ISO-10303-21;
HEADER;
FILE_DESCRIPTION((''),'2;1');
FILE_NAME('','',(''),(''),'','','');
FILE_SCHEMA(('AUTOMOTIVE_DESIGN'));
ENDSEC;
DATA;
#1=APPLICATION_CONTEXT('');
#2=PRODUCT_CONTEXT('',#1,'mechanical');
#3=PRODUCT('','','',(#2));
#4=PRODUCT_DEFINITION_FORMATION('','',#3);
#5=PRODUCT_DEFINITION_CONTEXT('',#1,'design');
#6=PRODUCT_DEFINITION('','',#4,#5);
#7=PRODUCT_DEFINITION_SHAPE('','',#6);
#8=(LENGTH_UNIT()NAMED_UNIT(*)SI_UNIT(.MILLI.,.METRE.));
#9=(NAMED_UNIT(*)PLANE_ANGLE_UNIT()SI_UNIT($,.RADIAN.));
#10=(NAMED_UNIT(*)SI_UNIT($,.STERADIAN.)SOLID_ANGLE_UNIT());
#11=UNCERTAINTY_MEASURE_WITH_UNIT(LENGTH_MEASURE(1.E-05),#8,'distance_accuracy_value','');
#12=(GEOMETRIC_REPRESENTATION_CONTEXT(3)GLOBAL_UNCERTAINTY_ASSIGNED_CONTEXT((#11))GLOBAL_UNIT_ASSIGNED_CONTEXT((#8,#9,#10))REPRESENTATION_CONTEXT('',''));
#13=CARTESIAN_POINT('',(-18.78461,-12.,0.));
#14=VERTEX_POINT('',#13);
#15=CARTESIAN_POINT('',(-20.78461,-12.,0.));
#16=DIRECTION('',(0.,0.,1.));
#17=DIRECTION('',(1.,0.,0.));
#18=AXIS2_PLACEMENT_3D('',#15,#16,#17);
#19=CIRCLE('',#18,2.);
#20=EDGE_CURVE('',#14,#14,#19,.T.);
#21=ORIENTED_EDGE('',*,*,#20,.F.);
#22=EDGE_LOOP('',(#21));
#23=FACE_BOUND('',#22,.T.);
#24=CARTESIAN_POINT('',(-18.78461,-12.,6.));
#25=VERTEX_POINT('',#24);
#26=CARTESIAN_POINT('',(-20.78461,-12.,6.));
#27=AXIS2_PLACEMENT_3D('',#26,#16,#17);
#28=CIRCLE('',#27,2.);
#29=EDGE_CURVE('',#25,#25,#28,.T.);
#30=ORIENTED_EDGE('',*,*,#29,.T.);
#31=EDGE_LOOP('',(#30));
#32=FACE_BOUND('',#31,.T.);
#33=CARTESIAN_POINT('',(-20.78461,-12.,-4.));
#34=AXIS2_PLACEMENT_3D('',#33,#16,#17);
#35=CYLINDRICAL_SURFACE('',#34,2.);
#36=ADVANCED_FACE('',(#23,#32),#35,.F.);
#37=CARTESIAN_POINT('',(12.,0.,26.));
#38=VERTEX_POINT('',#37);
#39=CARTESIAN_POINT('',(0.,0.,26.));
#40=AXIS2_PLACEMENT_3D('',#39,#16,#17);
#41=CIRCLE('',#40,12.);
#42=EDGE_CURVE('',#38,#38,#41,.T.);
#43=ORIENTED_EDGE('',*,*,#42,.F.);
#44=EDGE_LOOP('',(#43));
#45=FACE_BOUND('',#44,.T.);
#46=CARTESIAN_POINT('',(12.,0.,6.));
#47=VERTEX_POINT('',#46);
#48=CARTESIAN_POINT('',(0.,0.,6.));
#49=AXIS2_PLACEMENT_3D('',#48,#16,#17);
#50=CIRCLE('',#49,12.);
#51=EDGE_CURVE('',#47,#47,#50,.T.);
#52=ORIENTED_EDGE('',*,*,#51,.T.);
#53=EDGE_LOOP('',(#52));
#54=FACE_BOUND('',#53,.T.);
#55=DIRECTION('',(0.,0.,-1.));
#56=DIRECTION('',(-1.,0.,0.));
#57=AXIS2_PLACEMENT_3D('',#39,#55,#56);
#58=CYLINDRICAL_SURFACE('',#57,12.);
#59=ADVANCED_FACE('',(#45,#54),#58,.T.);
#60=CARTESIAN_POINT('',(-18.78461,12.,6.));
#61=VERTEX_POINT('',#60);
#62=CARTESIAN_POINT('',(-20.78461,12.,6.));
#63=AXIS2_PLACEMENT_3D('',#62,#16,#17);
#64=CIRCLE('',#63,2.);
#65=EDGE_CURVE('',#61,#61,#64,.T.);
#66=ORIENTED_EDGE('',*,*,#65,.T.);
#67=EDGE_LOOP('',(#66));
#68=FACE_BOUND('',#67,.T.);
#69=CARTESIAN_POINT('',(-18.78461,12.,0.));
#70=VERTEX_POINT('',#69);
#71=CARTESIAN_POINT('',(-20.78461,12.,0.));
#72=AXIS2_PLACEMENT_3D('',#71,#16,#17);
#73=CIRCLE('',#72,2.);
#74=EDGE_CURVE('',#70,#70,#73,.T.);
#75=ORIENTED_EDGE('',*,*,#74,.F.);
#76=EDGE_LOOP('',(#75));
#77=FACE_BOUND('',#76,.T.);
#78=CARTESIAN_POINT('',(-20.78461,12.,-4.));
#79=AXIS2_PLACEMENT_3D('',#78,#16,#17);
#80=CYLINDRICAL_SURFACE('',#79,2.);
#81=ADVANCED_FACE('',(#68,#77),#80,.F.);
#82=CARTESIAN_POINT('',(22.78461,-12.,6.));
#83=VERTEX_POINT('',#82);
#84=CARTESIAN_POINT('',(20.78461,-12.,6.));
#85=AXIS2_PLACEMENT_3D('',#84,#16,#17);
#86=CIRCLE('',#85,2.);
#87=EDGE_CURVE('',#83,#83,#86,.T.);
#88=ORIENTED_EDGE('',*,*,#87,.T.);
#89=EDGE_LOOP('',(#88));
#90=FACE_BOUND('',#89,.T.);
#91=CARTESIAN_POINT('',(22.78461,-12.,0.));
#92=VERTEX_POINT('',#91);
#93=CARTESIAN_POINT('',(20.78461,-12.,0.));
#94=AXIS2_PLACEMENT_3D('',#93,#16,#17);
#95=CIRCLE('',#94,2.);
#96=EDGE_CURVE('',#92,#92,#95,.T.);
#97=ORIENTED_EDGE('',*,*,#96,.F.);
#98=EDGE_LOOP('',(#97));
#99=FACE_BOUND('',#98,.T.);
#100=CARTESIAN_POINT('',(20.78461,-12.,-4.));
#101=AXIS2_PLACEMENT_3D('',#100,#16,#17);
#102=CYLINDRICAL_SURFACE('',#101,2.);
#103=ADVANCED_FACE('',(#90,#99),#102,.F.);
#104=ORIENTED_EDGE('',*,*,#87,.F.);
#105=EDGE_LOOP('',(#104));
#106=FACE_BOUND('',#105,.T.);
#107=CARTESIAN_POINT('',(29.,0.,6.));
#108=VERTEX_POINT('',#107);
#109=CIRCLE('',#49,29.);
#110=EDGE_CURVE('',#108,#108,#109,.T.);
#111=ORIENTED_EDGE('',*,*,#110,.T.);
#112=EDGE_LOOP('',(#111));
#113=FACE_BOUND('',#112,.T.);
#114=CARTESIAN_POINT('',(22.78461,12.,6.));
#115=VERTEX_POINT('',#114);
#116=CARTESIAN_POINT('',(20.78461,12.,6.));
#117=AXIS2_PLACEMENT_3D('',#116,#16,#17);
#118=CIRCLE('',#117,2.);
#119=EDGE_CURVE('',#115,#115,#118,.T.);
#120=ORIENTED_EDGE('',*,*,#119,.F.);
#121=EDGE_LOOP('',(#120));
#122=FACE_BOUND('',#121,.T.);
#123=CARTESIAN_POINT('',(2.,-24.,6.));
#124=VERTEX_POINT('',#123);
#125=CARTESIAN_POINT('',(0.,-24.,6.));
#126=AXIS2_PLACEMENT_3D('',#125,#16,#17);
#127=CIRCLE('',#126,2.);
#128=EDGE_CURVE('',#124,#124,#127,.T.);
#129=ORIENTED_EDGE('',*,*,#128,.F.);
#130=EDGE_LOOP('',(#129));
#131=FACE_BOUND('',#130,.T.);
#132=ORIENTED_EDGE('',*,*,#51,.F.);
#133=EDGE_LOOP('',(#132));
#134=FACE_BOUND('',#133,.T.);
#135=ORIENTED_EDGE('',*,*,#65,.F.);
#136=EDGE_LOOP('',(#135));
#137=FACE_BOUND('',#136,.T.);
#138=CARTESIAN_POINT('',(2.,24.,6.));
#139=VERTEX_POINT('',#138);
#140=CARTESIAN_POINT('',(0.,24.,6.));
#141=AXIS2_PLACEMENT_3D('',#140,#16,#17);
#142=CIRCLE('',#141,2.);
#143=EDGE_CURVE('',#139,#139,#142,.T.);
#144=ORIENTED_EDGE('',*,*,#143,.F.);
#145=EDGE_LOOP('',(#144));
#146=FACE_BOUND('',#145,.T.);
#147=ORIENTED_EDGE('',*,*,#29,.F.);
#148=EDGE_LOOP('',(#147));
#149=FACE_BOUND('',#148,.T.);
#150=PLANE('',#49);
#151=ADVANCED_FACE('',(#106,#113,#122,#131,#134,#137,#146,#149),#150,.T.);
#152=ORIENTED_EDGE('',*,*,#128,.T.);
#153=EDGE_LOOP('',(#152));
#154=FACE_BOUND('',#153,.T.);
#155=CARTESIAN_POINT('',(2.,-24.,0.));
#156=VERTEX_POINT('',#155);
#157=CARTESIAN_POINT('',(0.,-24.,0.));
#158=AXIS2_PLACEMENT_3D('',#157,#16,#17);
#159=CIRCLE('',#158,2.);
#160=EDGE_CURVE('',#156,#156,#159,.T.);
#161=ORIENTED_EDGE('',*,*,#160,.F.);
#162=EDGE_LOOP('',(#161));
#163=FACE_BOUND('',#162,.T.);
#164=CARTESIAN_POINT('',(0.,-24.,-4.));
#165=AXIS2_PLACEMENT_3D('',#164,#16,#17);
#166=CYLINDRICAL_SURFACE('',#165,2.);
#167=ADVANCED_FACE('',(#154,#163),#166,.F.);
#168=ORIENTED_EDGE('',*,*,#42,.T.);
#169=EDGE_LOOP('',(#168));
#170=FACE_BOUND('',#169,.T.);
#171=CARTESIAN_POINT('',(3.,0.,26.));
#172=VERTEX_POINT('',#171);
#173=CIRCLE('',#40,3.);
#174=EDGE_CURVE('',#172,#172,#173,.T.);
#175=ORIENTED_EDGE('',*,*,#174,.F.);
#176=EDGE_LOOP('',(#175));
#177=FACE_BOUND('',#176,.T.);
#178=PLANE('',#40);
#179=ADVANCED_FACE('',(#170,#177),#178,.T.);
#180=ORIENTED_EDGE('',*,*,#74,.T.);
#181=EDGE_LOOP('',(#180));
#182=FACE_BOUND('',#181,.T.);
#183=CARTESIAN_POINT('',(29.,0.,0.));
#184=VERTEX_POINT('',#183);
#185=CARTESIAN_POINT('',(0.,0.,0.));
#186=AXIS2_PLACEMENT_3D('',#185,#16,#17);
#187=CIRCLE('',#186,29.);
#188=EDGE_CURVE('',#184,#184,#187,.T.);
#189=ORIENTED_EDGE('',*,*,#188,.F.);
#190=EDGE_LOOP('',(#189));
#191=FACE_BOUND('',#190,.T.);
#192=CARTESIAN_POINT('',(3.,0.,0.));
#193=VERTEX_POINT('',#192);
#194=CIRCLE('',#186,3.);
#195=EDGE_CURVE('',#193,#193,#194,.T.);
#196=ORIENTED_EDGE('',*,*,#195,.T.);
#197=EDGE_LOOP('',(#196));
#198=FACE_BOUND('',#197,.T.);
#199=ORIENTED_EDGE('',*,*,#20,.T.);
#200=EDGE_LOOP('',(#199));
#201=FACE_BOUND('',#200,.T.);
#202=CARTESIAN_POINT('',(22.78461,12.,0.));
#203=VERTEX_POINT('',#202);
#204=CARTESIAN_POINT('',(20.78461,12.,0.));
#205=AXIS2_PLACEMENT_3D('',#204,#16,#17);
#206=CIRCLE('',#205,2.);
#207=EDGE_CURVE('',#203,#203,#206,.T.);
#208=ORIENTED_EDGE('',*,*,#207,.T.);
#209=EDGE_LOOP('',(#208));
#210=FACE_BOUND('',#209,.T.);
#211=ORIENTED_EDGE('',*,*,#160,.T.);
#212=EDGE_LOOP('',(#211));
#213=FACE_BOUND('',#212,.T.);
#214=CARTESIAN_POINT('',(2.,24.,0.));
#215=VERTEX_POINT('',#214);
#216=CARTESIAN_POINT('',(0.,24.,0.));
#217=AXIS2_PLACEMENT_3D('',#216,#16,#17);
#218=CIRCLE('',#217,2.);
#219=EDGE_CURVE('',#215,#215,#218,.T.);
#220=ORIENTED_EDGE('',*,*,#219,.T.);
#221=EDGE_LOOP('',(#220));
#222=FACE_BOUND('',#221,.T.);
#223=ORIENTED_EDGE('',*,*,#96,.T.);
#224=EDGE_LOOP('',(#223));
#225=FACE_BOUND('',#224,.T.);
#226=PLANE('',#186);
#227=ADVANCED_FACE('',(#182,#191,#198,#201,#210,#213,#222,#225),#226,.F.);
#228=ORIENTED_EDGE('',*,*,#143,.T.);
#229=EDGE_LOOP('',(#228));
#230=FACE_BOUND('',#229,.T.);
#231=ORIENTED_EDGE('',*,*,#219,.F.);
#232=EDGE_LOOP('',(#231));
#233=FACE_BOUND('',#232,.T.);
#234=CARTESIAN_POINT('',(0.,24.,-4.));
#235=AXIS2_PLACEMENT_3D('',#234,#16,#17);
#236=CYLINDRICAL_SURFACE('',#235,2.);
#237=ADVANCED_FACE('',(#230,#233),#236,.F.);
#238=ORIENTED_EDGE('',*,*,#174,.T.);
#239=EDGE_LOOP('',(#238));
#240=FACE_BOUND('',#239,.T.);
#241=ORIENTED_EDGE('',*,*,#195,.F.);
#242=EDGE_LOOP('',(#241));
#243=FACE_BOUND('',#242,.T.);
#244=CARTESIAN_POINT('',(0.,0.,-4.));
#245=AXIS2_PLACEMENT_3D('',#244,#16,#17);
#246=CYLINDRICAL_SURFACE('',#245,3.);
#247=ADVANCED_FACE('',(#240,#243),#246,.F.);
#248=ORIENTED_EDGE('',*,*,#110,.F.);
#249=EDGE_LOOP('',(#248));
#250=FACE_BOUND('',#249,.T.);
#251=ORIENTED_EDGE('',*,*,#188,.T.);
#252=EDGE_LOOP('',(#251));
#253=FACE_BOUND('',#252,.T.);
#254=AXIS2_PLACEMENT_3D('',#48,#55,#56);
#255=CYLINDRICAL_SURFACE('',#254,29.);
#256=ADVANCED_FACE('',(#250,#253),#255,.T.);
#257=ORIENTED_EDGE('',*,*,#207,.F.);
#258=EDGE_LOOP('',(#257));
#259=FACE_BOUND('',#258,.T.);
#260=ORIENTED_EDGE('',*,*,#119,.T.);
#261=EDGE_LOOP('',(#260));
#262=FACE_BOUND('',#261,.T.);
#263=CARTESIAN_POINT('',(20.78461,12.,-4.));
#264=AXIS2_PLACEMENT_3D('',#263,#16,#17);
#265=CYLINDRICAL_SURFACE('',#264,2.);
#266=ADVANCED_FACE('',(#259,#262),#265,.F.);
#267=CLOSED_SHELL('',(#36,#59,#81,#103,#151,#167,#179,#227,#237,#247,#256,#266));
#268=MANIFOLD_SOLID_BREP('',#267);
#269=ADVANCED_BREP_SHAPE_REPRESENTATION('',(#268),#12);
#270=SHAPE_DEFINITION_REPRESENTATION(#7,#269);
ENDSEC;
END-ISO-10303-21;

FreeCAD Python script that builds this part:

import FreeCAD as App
import Part
import Sketcher
from FreeCAD import Vector

doc = App.newDocument("Part")
params = doc.addObject("Spreadsheet::Sheet", "Params")
for row, (alias, value) in enumerate([
    ("sketch1_diameter", "58 mm"),
    ("pad1_length", "6 mm"),
    ("sketch2_diameter", "24 mm"),
    ("pad2_length", "20 mm"),
    ("sketch3_diameter", "4 mm"),
    ("pocket1_length", "10 mm"),
    ("sketch4_diameter", "6 mm"),
    ("pocket2_length", "30 mm"),
], start=1):
    params.set(f"A{row}", alias)
    params.set(f"B{row}", "=" + value)
    params.setAlias(f"B{row}", alias)

body = doc.addObject("PartDesign::Body", "Body")

# Sketch on XY plane
sketch1 = body.newObject("Sketcher::SketchObject", "Sketch")
sketch1.AttachmentSupport = (doc.getObject("XY_Plane"), [""])
sketch1.MapMode = "FlatFace"
sketch1.addGeometry(Part.Circle(Vector(0, 0, 0), Vector(0, 0, 1), 29), False)
sketch1.addConstraint([
    Sketcher.Constraint("Coincident", 0, 3, -1, 1),
    Sketcher.Constraint("Diameter", 0, 58.0),
])
sketch1.setExpression("Constraints[1]", "Params.sketch1_diameter")
pad1 = body.newObject("PartDesign::Pad", "Pad")
pad1.Profile = sketch1
pad1.setExpression("Length", "Params.pad1_length")

# Sketch on XY plane
sketch2 = body.newObject("Sketcher::SketchObject", "Sketch001")
sketch2.AttachmentSupport = (doc.getObject("XY_Plane"), [""])
sketch2.MapMode = "FlatFace"
sketch2.AttachmentOffset = App.Placement(Vector(0, 0, 6), App.Rotation())
sketch2.addGeometry(Part.Circle(Vector(0, 0, 0), Vector(0, 0, 1), 12), False)
sketch2.addConstraint([
    Sketcher.Constraint("Coincident", 0, 3, -1, 1),
    Sketcher.Constraint("Diameter", 0, 24.0),
])
sketch2.setExpression("Constraints[1]", "Params.sketch2_diameter")
pad2 = body.newObject("PartDesign::Pad", "Pad001")
pad2.Profile = sketch2
pad2.setExpression("Length", "Params.pad2_length")

# Sketch on XY plane
sketch3 = body.newObject("Sketcher::SketchObject", "Sketch002")
sketch3.AttachmentSupport = (doc.getObject("XY_Plane"), [""])
sketch3.MapMode = "FlatFace"
sketch3.AttachmentOffset = App.Placement(Vector(0, 0, 6), App.Rotation())
sketch3.addGeometry([
    Part.Circle(Vector(0, 24, 0), Vector(0, 0, 1), 2),  # 0
    Part.Circle(Vector(20.8, 12, 0), Vector(0, 0, 1), 2),  # 1
    Part.Circle(Vector(20.8, -12, 0), Vector(0, 0, 1), 2),  # 2
    Part.Circle(Vector(0, -24, 0), Vector(0, 0, 1), 2),  # 3
    Part.Circle(Vector(-20.8, -12, 0), Vector(0, 0, 1), 2),  # 4
    Part.Circle(Vector(-20.8, 12, 0), Vector(0, 0, 1), 2),  # 5
], False)
sketch3.addConstraint([
    Sketcher.Constraint("Equal", 0, 1),
    Sketcher.Constraint("Equal", 1, 2),
    Sketcher.Constraint("Equal", 2, 3),
    Sketcher.Constraint("Equal", 3, 4),
    Sketcher.Constraint("Equal", 4, 5),
    Sketcher.Constraint("Symmetric", 0, 3, 3, 3, -1, 1),
    Sketcher.Constraint("Symmetric", 1, 3, 4, 3, -1, 1),
    Sketcher.Constraint("Symmetric", 2, 3, 5, 3, -1, 1),
    Sketcher.Constraint("Symmetric", 2, 3, 4, 3, -2),
    Sketcher.Constraint("PointOnObject", 0, 3, -2),
    Sketcher.Constraint("Diameter", 0, 4.0),
    Sketcher.Constraint("DistanceY", -1, 1, 0, 3, 24.0),
    Sketcher.Constraint("DistanceY", -1, 1, 1, 3, 12.0),
    Sketcher.Constraint("DistanceX", -1, 1, 1, 3, 20.78461),
])
sketch3.setExpression("Constraints[10]", "Params.sketch3_diameter")
pocket1 = body.newObject("PartDesign::Pocket", "Pocket")
pocket1.Profile = sketch3
pocket1.setExpression("Length", "Params.pocket1_length")

# Sketch on XY plane
sketch4 = body.newObject("Sketcher::SketchObject", "Sketch003")
sketch4.AttachmentSupport = (doc.getObject("XY_Plane"), [""])
sketch4.MapMode = "FlatFace"
sketch4.AttachmentOffset = App.Placement(Vector(0, 0, 26), App.Rotation())
sketch4.addGeometry(Part.Circle(Vector(0, 0, 0), Vector(0, 0, 1), 3), False)
sketch4.addConstraint([
    Sketcher.Constraint("Coincident", 0, 3, -1, 1),
    Sketcher.Constraint("Diameter", 0, 6.0),
])
sketch4.setExpression("Constraints[1]", "Params.sketch4_diameter")
pocket2 = body.newObject("PartDesign::Pocket", "Pocket001")
pocket2.Profile = sketch4
pocket2.setExpression("Length", "Params.pocket2_length")

doc.recompute()
